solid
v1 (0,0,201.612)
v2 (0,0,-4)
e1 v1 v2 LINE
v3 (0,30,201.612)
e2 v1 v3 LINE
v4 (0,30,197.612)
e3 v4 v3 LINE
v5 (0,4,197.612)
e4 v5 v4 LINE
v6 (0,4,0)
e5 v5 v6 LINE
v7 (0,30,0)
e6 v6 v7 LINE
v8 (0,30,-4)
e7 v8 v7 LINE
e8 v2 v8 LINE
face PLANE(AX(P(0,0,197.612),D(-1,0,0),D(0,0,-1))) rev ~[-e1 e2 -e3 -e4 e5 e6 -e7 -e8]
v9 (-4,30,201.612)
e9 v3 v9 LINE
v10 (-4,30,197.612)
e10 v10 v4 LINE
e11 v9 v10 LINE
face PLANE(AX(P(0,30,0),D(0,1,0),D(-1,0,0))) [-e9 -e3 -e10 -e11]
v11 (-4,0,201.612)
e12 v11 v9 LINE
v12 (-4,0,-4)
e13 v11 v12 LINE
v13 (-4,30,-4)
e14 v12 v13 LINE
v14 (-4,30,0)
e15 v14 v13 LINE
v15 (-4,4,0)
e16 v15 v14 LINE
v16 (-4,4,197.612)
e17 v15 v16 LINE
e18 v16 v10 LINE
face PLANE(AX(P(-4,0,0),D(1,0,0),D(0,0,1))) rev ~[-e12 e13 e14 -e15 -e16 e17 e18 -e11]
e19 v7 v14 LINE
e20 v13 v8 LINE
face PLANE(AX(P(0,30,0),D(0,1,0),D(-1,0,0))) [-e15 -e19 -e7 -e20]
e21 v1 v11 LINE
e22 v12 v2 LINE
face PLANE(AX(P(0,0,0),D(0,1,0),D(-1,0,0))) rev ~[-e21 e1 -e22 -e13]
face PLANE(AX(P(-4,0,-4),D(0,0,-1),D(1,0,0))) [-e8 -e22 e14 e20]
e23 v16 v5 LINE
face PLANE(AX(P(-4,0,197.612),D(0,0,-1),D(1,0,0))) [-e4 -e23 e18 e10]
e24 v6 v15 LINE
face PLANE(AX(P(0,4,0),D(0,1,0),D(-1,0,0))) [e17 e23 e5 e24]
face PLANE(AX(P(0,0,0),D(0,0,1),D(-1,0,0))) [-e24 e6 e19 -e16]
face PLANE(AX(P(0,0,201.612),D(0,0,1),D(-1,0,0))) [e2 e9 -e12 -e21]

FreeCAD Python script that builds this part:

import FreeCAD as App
import Part
import Sketcher

V = App.Vector
Q = App.Units.Quantity


def add_polygon(sketch, points):
    """Adds a closed chain of lines whose ends are joined by coincident constraints."""
    first, n = sketch.GeometryCount, len(points)
    for a, b in zip(points, points[1:] + points[:1]):
        sketch.addGeometry(Part.LineSegment(App.Vector(*a, 0), App.Vector(*b, 0)), False)
    for i in range(n):
        sketch.addConstraint(Sketcher.Constraint("Coincident", first + i, 2, first + (i + 1) % n, 1))

doc = App.newDocument("Part")
params = doc.addObject("Spreadsheet::Sheet", "Params")
for row, (alias, value) in enumerate([
    ("sketch1_width", "4 mm"),
    ("pad1_length", "30 mm"),
    ("sketch2_width", "4 mm"),
    ("pad2_length", "4 mm"),
], start=1):
    params.set(f"A{row}", alias)
    params.set(f"B{row}", "=" + value)
    params.setAlias(f"B{row}", alias)

body = doc.addObject("PartDesign::Body", "Body")
body.AllowCompound = True

sketch1 = doc.addObject("Sketcher::SketchObject", "Sketch")
body.addObject(sketch1)
sketch1.AttachmentSupport = (doc.XZ_Plane, [""])
sketch1.MapMode = "FlatFace"
add_polygon(sketch1, [(-4, 0), (0, 0), (0, -4), (-4, -4)])
add_polygon(sketch1, [(0, 201.612), (0, 197.612), (-4, 197.612), (-4, 201.612)])
sketch1.addConstraint([
    Sketcher.Constraint("Horizontal", 0),
    Sketcher.Constraint("Vertical", 1),
    Sketcher.Constraint("Horizontal", 2),
    Sketcher.Constraint("Vertical", 3),
    Sketcher.Constraint("Vertical", 4),
    Sketcher.Constraint("Horizontal", 5),
    Sketcher.Constraint("Vertical", 6),
    Sketcher.Constraint("Horizontal", 7),
    Sketcher.Constraint("Coincident", 0, 2, -1, 1),
    Sketcher.Constraint("PointOnObject", 4, 2, -2),
    Sketcher.Constraint("Vertical", 3, 2, 5, 2),
    Sketcher.Constraint("Equal", 7, 1),
    Sketcher.Constraint("Equal", 3, 4),
    Sketcher.Constraint("DistanceX", 0, 1, 0, 2, Q("4 mm")),
    Sketcher.Constraint("DistanceY", -1, 1, 4, 2, Q("197.612 mm")),
])
sketch1.setExpression("Constraints[21]", "Params.sketch1_width")
pad1 = doc.addObject("PartDesign::Pad", "Pad")
body.addObject(pad1)
pad1.Profile = sketch1
pad1.setExpression("Length", "Params.pad1_length")
pad1.Reversed = True

sketch2 = doc.addObject("Sketcher::SketchObject", "Sketch001")
body.addObject(sketch2)
sketch2.AttachmentSupport = (doc.XZ_Plane, [""])
sketch2.MapMode = "FlatFace"
add_polygon(sketch2, [(0, 197.612), (0, 0), (-4, 0), (-4, 197.612)])
sketch2.addConstraint([
    Sketcher.Constraint("Vertical", 0),
    Sketcher.Constraint("Horizontal", 1),
    Sketcher.Constraint("Vertical", 2),
    Sketcher.Constraint("Horizontal", 3),
    Sketcher.Constraint("Coincident", 0, 2, -1, 1),
    Sketcher.Constraint("DistanceX", 1, 2, 1, 1, Q("4 mm")),
    Sketcher.Constraint("DistanceY", 0, 2, 0, 1, Q("197.612 mm")),
])
sketch2.setExpression("Constraints[9]", "Params.sketch2_width")
pad2 = doc.addObject("PartDesign::Pad", "Pad001")
body.addObject(pad2)
pad2.Profile = sketch2
pad2.setExpression("Length", "Params.pad2_length")
pad2.Reversed = True

doc.recompute()
